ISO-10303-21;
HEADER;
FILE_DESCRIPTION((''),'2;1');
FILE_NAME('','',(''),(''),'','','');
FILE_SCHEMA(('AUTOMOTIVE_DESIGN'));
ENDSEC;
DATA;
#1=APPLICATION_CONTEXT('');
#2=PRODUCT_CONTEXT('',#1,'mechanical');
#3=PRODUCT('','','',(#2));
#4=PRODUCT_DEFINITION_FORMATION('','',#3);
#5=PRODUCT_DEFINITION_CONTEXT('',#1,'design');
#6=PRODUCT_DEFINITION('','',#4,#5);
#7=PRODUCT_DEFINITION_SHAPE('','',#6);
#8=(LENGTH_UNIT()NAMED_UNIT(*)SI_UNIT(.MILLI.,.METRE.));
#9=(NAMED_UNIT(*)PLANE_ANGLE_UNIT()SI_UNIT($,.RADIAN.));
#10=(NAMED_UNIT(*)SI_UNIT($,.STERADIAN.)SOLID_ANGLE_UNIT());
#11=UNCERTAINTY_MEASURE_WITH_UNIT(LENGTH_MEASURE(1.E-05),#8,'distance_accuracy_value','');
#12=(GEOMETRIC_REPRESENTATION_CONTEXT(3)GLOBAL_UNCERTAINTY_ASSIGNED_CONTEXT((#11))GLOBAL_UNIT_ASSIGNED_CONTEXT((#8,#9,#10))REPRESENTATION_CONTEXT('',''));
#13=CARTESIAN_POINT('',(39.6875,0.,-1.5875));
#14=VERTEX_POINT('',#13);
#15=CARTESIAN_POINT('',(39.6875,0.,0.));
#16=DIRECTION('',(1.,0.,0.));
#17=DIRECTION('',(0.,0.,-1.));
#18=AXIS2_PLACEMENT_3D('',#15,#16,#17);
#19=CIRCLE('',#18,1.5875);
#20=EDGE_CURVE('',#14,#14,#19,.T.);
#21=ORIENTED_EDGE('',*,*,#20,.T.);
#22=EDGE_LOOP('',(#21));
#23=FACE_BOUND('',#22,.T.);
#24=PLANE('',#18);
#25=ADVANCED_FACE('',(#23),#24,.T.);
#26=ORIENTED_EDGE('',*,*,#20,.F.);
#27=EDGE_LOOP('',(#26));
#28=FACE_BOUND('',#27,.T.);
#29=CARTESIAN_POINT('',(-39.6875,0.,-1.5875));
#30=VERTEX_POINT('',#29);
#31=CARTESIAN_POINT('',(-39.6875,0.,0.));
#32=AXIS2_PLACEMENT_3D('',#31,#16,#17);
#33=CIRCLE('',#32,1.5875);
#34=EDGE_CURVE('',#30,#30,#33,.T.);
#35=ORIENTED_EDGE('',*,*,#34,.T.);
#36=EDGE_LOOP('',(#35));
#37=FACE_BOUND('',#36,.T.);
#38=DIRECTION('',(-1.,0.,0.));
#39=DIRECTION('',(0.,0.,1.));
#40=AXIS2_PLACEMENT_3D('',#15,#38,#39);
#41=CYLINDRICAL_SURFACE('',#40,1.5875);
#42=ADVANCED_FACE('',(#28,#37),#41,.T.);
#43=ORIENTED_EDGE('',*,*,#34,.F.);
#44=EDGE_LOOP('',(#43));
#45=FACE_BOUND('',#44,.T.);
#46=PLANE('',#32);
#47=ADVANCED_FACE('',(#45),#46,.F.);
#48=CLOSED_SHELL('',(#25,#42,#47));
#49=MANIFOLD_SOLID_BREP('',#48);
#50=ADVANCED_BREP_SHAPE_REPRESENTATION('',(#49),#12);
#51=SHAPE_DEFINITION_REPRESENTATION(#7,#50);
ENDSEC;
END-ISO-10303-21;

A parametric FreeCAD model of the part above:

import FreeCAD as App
import Part
import Sketcher

V = App.Vector
Q = App.Units.Quantity

doc = App.newDocument("Part")
body = doc.addObject("PartDesign::Body", "Body")

# Sketch on YZ plane
sketch1 = doc.addObject("Sketcher::SketchObject", "Sketch")
body.addObject(sketch1)
sketch1.AttachmentSupport = (doc.YZ_Plane, [""])
sketch1.MapMode = "FlatFace"
sketch1.addGeometry(Part.Circle(V(0, 0, 0), V(0, 0, 1), 1.5875), False)
sketch1.addConstraint([
    Sketcher.Constraint("Coincident", 0, 3, -1, 1),
    Sketcher.Constraint("Diameter", 0, Q("0.125 in")),
])
pad1 = doc.addObject("PartDesign::Pad", "Pad")
body.addObject(pad1)
pad1.Profile = sketch1
pad1.Length = Q("3.125 in")
pad1.Midplane = True

doc.recompute()
